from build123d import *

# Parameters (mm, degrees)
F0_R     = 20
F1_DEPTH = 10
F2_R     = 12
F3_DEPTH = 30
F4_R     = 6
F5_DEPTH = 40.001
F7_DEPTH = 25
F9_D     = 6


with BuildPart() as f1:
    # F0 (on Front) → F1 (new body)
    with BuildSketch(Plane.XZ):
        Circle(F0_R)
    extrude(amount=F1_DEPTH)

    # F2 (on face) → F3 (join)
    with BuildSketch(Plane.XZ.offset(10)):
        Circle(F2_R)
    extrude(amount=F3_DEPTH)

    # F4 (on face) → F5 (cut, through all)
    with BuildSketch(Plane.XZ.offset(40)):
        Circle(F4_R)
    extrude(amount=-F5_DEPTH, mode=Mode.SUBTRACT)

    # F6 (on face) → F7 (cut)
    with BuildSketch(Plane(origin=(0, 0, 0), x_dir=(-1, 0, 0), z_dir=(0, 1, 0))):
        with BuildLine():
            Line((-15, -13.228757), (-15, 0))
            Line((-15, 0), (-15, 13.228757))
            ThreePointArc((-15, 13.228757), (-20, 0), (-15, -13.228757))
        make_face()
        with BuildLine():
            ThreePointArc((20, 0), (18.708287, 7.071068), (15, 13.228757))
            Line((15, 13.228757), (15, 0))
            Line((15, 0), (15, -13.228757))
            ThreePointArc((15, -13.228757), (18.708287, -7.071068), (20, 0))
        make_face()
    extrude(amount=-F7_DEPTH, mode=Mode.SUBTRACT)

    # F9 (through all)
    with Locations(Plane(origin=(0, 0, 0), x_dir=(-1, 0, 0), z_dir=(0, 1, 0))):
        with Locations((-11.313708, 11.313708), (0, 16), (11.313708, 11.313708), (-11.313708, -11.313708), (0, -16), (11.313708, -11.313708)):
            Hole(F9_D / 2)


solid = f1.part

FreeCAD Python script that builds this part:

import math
import FreeCAD as App
import Part
import Sketcher
from FreeCAD import Vector
Q = App.Units.Quantity

doc = App.newDocument("Part")
body = doc.addObject("PartDesign::Body", "Body")

# Sketch on XZ plane
sketch1 = doc.addObject("Sketcher::SketchObject", "Sketch")
body.addObject(sketch1)
sketch1.AttachmentSupport = (doc.XZ_Plane, [""])
sketch1.MapMode = "FlatFace"
sketch1.addGeometry(Part.Circle(Vector(0, 0, 0), Vector(0, 0, 1), 20), False)
sketch1.addConstraint(Sketcher.Constraint("Coincident", 0, 3, -1, 1))
sketch1.addConstraint(Sketcher.Constraint("Diameter", 0, Q("40 mm")))
pad1 = doc.addObject("PartDesign::Pad", "Pad")
body.addObject(pad1)
pad1.Profile = sketch1
pad1.Length = 10

# Sketch on XZ plane
sketch2 = doc.addObject("Sketcher::SketchObject", "Sketch001")
body.addObject(sketch2)
sketch2.AttachmentSupport = (doc.XZ_Plane, [""])
sketch2.MapMode = "FlatFace"
sketch2.AttachmentOffset = App.Placement(Vector(0, 0, 10), App.Rotation())
sketch2.addGeometry(Part.Circle(Vector(0, 0, 0), Vector(0, 0, 1), 12), False)
sketch2.addConstraint(Sketcher.Constraint("Coincident", 0, 3, -1, 1))
sketch2.addConstraint(Sketcher.Constraint("Diameter", 0, Q("24 mm")))
pad2 = doc.addObject("PartDesign::Pad", "Pad001")
body.addObject(pad2)
pad2.Profile = sketch2
pad2.Length = 30

# Sketch on XZ plane
sketch3 = doc.addObject("Sketcher::SketchObject", "Sketch002")
body.addObject(sketch3)
sketch3.AttachmentSupport = (doc.XZ_Plane, [""])
sketch3.MapMode = "FlatFace"
sketch3.AttachmentOffset = App.Placement(Vector(0, 0, 40), App.Rotation())
sketch3.addGeometry(Part.Circle(Vector(0, 0, 0), Vector(0, 0, 1), 6), False)
sketch3.addConstraint(Sketcher.Constraint("Coincident", 0, 3, -1, 1))
sketch3.addConstraint(Sketcher.Constraint("Diameter", 0, Q("12 mm")))
pocket1 = doc.addObject("PartDesign::Pocket", "Pocket")
body.addObject(pocket1)
pocket1.Profile = sketch3
pocket1.Type = "ThroughAll"

# Sketch on XZ plane
sketch4 = doc.addObject("Sketcher::SketchObject", "Sketch003")
body.addObject(sketch4)
sketch4.AttachmentSupport = (doc.XZ_Plane, [""])
sketch4.MapMode = "FlatFace"
sketch4.addGeometry(Part.LineSegment(Vector(15, -13, 0), Vector(15, 13, 0)), False)
sketch4.addGeometry(Part.ArcOfCircle(Part.Circle(Vector(0, 0, 0), Vector(0, 0, 1), 20), math.radians(-41), math.radians(41)), False)
sketch4.addGeometry(Part.ArcOfCircle(Part.Circle(Vector(0, 0, 0), Vector(0, 0, 1), 20), math.radians(139), math.radians(180)), False)
sketch4.addGeometry(Part.LineSegment(Vector(-15, 13, 0), Vector(-15, -13, 0)), False)
sketch4.addGeometry(Part.ArcOfCircle(Part.Circle(Vector(0, 0, 0), Vector(0, 0, 1), 20), math.radians(180), math.radians(221)), False)
sketch4.addConstraint(Sketcher.Constraint("Coincident", 0, 1, 1, 1))
sketch4.addConstraint(Sketcher.Constraint("Coincident", 1, 2, 0, 2))
sketch4.addConstraint(Sketcher.Constraint("Coincident", 2, 1, 3, 1))
sketch4.addConstraint(Sketcher.Constraint("Coincident", 3, 2, 4, 2))
sketch4.addConstraint(Sketcher.Constraint("Tangent", 4, 1, 2, 2))
sketch4.addConstraint(Sketcher.Constraint("Vertical", 0))
sketch4.addConstraint(Sketcher.Constraint("Vertical", 3))
sketch4.addConstraint(Sketcher.Constraint("Coincident", 1, 3, -1, 1))
sketch4.addConstraint(Sketcher.Constraint("Coincident", 2, 3, -1, 1))
sketch4.addConstraint(Sketcher.Constraint("Equal", 1, 2))
sketch4.addConstraint(Sketcher.Constraint("Equal", 2, 4))
sketch4.addConstraint(Sketcher.Constraint("PointOnObject", 4, 1, -1))
sketch4.addConstraint(Sketcher.Constraint("Horizontal", 1, 2, 2, 1))
sketch4.addConstraint(Sketcher.Constraint("Radius", 1, Q("20.000001 mm")))
sketch4.addConstraint(Sketcher.Constraint("DistanceX", -1, 1, 0, 1, Q("15 mm")))
pocket2 = doc.addObject("PartDesign::Pocket", "Pocket001")
body.addObject(pocket2)
pocket2.Profile = sketch4
pocket2.Length = 25
pocket2.Reversed = True

# Sketch on XZ plane
sketch5 = doc.addObject("Sketcher::SketchObject", "Sketch004")
body.addObject(sketch5)
sketch5.AttachmentSupport = (doc.XZ_Plane, [""])
sketch5.MapMode = "FlatFace"
sketch5.addGeometry(Part.Circle(Vector(11.3, 11.3, 0), Vector(0, 0, 1), 3), False)
sketch5.addGeometry(Part.Circle(Vector(0, 16, 0), Vector(0, 0, 1), 3), False)
sketch5.addGeometry(Part.Circle(Vector(-11.3, 11.3, 0), Vector(0, 0, 1), 3), False)
sketch5.addGeometry(Part.Circle(Vector(11.3, -11.3, 0), Vector(0, 0, 1), 3), False)
sketch5.addGeometry(Part.Circle(Vector(0, -16, 0), Vector(0, 0, 1), 3), False)
sketch5.addGeometry(Part.Circle(Vector(-11.3, -11.3, 0), Vector(0, 0, 1), 3), False)
sketch5.addConstraint(Sketcher.Constraint("Equal", 0, 1))
sketch5.addConstraint(Sketcher.Constraint("Equal", 1, 2))
sketch5.addConstraint(Sketcher.Constraint("Equal", 2, 3))
sketch5.addConstraint(Sketcher.Constraint("Equal", 3, 4))
sketch5.addConstraint(Sketcher.Constraint("Equal", 4, 5))
sketch5.addConstraint(Sketcher.Constraint("Symmetric", 2, 3, 3, 3, -1, 1))
sketch5.addConstraint(Sketcher.Constraint("Symmetric", 1, 3, 4, 3, -1, 1))
sketch5.addConstraint(Sketcher.Constraint("Symmetric", 0, 3, 5, 3, -1, 1))
sketch5.addConstraint(Sketcher.Constraint("Symmetric", 0, 3, 2, 3, -2))
sketch5.addConstraint(Sketcher.Constraint("PointOnObject", 1, 3, -2))
sketch5.addConstraint(Sketcher.Constraint("Diameter", 0, Q("6 mm")))
sketch5.addConstraint(Sketcher.Constraint("DistanceY", -1, 1, 1, 3, Q("16 mm")))
sketch5.addConstraint(Sketcher.Constraint("DistanceX", -1, 1, 0, 3, Q("11.313708 mm")))
sketch5.addConstraint(Sketcher.Constraint("DistanceY", -1, 1, 0, 3, Q("11.313708 mm")))
doc.recompute()
hole = doc.addObject("PartDesign::Hole", "Hole")
body.addObject(hole)
hole.Profile = sketch5
hole.ThreadType = "None"
hole.Diameter = 6
hole.DepthType = "ThroughAll"
hole.Reversed = True

doc.recompute()
